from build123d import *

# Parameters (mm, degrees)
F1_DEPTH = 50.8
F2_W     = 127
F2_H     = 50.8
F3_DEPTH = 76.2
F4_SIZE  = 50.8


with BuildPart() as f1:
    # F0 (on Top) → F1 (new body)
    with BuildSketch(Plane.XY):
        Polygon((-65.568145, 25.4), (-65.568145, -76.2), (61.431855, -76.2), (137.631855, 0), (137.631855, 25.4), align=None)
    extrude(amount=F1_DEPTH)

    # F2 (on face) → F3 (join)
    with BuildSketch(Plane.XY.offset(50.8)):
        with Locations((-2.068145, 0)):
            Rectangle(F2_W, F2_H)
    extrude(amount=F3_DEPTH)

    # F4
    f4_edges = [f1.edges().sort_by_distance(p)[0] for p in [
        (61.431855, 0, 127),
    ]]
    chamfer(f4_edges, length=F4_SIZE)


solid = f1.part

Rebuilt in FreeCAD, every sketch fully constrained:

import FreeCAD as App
import Part
import Sketcher

V = App.Vector
Q = App.Units.Quantity


def edges_at(feature, points):
    """Names of the edges that pass closest to the given points."""
    edges = feature.Shape.Edges
    near = lambda p: min(range(len(edges)), key=lambda i: edges[i].distToShape(Part.Vertex(*p))[0])
    return sorted({f"Edge{near(p) + 1}" for p in points})

doc = App.newDocument("Part")
body = doc.addObject("PartDesign::Body", "Body")

# Sketch on XY plane
sketch1 = body.newObject("Sketcher::SketchObject", "Sketch")
sketch1.AttachmentSupport = (doc.getObject("XY_Plane"), [""])
sketch1.MapMode = "FlatFace"
sketch1.addGeometry([
    Part.LineSegment(V(-65.568145, 25.4, 0), V(-65.568145, -76.2, 0)),  # 0
    Part.LineSegment(V(-65.568145, -76.2, 0), V(61.431855, -76.2, 0)),  # 1
    Part.LineSegment(V(61.431855, -76.2, 0), V(137.631855, 0, 0)),  # 2
    Part.LineSegment(V(137.631855, 0, 0), V(137.631855, 25.4, 0)),  # 3
    Part.LineSegment(V(137.631855, 25.4, 0), V(-65.568145, 25.4, 0)),  # 4
], False)
sketch1.addConstraint([
    Sketcher.Constraint("Coincident", 0, 2, 1, 1),
    Sketcher.Constraint("Coincident", 1, 2, 2, 1),
    Sketcher.Constraint("Coincident", 2, 2, 3, 1),
    Sketcher.Constraint("Coincident", 3, 2, 4, 1),
    Sketcher.Constraint("Coincident", 4, 2, 0, 1),
    Sketcher.Constraint("Vertical", 0),
    Sketcher.Constraint("Horizontal", 1),
    Sketcher.Constraint("Vertical", 3),
    Sketcher.Constraint("Horizontal", 4),
    Sketcher.Constraint("PointOnObject", 2, 2, -1),
    Sketcher.Constraint("DistanceX", 1, 1, 1, 2, Q("5 in")),
    Sketcher.Constraint("DistanceX", 4, 2, 4, 1, Q("8 in")),
    Sketcher.Constraint("DistanceY", 0, 2, 0, 1, Q("4 in")),
    Sketcher.Constraint("DistanceY", 3, 1, 3, 2, Q("1 in")),
    Sketcher.Constraint("DistanceX", 0, 2, -1, 1, Q("65.568145 mm")),
])
pad1 = body.newObject("PartDesign::Pad", "Pad")
pad1.Profile = sketch1
pad1.Length = Q("2 in")

# Sketch on XY plane
sketch2 = body.newObject("Sketcher::SketchObject", "Sketch001")
sketch2.AttachmentSupport = (doc.getObject("XY_Plane"), [""])
sketch2.MapMode = "FlatFace"
sketch2.AttachmentOffset = App.Placement(V(0, 0, 2 * 25.4), App.Rotation())
sketch2.addGeometry([
    Part.LineSegment(V(-65.568145, 25.4, 0), V(-65.568145, -25.4, 0)),
    Part.LineSegment(V(-65.568145, -25.4, 0), V(61.431855, -25.4, 0)),
    Part.LineSegment(V(61.431855, -25.4, 0), V(61.431855, 25.4, 0)),
    Part.LineSegment(V(61.431855, 25.4, 0), V(-65.568145, 25.4, 0)),
], False)
sketch2.addConstraint([
    Sketcher.Constraint("Coincident", 0, 2, 1, 1),
    Sketcher.Constraint("Coincident", 1, 2, 2, 1),
    Sketcher.Constraint("Coincident", 2, 2, 3, 1),
    Sketcher.Constraint("Coincident", 3, 2, 0, 1),
    Sketcher.Constraint("Vertical", 0),
    Sketcher.Constraint("Horizontal", 1),
    Sketcher.Constraint("Vertical", 2),
    Sketcher.Constraint("Horizontal", 3),
    Sketcher.Constraint("DistanceX", 1, 1, 1, 2, Q("5 in")),
    Sketcher.Constraint("DistanceY", 0, 2, 0, 1, Q("2 in")),
    Sketcher.Constraint("DistanceY", 0, 2, -1, 1, Q("1 in")),
    Sketcher.Constraint("DistanceX", 0, 2, -1, 1, Q("65.568145 mm")),
])
pad2 = body.newObject("PartDesign::Pad", "Pad001")
pad2.Profile = sketch2
pad2.Length = Q("3 in")
doc.recompute()

chamfer = body.newObject("PartDesign::Chamfer", "Chamfer")
chamfer.Base = (pad2, edges_at(pad2, [(61.432, 0, 127)]))
chamfer.Size = Q("2 in")

doc.recompute()
